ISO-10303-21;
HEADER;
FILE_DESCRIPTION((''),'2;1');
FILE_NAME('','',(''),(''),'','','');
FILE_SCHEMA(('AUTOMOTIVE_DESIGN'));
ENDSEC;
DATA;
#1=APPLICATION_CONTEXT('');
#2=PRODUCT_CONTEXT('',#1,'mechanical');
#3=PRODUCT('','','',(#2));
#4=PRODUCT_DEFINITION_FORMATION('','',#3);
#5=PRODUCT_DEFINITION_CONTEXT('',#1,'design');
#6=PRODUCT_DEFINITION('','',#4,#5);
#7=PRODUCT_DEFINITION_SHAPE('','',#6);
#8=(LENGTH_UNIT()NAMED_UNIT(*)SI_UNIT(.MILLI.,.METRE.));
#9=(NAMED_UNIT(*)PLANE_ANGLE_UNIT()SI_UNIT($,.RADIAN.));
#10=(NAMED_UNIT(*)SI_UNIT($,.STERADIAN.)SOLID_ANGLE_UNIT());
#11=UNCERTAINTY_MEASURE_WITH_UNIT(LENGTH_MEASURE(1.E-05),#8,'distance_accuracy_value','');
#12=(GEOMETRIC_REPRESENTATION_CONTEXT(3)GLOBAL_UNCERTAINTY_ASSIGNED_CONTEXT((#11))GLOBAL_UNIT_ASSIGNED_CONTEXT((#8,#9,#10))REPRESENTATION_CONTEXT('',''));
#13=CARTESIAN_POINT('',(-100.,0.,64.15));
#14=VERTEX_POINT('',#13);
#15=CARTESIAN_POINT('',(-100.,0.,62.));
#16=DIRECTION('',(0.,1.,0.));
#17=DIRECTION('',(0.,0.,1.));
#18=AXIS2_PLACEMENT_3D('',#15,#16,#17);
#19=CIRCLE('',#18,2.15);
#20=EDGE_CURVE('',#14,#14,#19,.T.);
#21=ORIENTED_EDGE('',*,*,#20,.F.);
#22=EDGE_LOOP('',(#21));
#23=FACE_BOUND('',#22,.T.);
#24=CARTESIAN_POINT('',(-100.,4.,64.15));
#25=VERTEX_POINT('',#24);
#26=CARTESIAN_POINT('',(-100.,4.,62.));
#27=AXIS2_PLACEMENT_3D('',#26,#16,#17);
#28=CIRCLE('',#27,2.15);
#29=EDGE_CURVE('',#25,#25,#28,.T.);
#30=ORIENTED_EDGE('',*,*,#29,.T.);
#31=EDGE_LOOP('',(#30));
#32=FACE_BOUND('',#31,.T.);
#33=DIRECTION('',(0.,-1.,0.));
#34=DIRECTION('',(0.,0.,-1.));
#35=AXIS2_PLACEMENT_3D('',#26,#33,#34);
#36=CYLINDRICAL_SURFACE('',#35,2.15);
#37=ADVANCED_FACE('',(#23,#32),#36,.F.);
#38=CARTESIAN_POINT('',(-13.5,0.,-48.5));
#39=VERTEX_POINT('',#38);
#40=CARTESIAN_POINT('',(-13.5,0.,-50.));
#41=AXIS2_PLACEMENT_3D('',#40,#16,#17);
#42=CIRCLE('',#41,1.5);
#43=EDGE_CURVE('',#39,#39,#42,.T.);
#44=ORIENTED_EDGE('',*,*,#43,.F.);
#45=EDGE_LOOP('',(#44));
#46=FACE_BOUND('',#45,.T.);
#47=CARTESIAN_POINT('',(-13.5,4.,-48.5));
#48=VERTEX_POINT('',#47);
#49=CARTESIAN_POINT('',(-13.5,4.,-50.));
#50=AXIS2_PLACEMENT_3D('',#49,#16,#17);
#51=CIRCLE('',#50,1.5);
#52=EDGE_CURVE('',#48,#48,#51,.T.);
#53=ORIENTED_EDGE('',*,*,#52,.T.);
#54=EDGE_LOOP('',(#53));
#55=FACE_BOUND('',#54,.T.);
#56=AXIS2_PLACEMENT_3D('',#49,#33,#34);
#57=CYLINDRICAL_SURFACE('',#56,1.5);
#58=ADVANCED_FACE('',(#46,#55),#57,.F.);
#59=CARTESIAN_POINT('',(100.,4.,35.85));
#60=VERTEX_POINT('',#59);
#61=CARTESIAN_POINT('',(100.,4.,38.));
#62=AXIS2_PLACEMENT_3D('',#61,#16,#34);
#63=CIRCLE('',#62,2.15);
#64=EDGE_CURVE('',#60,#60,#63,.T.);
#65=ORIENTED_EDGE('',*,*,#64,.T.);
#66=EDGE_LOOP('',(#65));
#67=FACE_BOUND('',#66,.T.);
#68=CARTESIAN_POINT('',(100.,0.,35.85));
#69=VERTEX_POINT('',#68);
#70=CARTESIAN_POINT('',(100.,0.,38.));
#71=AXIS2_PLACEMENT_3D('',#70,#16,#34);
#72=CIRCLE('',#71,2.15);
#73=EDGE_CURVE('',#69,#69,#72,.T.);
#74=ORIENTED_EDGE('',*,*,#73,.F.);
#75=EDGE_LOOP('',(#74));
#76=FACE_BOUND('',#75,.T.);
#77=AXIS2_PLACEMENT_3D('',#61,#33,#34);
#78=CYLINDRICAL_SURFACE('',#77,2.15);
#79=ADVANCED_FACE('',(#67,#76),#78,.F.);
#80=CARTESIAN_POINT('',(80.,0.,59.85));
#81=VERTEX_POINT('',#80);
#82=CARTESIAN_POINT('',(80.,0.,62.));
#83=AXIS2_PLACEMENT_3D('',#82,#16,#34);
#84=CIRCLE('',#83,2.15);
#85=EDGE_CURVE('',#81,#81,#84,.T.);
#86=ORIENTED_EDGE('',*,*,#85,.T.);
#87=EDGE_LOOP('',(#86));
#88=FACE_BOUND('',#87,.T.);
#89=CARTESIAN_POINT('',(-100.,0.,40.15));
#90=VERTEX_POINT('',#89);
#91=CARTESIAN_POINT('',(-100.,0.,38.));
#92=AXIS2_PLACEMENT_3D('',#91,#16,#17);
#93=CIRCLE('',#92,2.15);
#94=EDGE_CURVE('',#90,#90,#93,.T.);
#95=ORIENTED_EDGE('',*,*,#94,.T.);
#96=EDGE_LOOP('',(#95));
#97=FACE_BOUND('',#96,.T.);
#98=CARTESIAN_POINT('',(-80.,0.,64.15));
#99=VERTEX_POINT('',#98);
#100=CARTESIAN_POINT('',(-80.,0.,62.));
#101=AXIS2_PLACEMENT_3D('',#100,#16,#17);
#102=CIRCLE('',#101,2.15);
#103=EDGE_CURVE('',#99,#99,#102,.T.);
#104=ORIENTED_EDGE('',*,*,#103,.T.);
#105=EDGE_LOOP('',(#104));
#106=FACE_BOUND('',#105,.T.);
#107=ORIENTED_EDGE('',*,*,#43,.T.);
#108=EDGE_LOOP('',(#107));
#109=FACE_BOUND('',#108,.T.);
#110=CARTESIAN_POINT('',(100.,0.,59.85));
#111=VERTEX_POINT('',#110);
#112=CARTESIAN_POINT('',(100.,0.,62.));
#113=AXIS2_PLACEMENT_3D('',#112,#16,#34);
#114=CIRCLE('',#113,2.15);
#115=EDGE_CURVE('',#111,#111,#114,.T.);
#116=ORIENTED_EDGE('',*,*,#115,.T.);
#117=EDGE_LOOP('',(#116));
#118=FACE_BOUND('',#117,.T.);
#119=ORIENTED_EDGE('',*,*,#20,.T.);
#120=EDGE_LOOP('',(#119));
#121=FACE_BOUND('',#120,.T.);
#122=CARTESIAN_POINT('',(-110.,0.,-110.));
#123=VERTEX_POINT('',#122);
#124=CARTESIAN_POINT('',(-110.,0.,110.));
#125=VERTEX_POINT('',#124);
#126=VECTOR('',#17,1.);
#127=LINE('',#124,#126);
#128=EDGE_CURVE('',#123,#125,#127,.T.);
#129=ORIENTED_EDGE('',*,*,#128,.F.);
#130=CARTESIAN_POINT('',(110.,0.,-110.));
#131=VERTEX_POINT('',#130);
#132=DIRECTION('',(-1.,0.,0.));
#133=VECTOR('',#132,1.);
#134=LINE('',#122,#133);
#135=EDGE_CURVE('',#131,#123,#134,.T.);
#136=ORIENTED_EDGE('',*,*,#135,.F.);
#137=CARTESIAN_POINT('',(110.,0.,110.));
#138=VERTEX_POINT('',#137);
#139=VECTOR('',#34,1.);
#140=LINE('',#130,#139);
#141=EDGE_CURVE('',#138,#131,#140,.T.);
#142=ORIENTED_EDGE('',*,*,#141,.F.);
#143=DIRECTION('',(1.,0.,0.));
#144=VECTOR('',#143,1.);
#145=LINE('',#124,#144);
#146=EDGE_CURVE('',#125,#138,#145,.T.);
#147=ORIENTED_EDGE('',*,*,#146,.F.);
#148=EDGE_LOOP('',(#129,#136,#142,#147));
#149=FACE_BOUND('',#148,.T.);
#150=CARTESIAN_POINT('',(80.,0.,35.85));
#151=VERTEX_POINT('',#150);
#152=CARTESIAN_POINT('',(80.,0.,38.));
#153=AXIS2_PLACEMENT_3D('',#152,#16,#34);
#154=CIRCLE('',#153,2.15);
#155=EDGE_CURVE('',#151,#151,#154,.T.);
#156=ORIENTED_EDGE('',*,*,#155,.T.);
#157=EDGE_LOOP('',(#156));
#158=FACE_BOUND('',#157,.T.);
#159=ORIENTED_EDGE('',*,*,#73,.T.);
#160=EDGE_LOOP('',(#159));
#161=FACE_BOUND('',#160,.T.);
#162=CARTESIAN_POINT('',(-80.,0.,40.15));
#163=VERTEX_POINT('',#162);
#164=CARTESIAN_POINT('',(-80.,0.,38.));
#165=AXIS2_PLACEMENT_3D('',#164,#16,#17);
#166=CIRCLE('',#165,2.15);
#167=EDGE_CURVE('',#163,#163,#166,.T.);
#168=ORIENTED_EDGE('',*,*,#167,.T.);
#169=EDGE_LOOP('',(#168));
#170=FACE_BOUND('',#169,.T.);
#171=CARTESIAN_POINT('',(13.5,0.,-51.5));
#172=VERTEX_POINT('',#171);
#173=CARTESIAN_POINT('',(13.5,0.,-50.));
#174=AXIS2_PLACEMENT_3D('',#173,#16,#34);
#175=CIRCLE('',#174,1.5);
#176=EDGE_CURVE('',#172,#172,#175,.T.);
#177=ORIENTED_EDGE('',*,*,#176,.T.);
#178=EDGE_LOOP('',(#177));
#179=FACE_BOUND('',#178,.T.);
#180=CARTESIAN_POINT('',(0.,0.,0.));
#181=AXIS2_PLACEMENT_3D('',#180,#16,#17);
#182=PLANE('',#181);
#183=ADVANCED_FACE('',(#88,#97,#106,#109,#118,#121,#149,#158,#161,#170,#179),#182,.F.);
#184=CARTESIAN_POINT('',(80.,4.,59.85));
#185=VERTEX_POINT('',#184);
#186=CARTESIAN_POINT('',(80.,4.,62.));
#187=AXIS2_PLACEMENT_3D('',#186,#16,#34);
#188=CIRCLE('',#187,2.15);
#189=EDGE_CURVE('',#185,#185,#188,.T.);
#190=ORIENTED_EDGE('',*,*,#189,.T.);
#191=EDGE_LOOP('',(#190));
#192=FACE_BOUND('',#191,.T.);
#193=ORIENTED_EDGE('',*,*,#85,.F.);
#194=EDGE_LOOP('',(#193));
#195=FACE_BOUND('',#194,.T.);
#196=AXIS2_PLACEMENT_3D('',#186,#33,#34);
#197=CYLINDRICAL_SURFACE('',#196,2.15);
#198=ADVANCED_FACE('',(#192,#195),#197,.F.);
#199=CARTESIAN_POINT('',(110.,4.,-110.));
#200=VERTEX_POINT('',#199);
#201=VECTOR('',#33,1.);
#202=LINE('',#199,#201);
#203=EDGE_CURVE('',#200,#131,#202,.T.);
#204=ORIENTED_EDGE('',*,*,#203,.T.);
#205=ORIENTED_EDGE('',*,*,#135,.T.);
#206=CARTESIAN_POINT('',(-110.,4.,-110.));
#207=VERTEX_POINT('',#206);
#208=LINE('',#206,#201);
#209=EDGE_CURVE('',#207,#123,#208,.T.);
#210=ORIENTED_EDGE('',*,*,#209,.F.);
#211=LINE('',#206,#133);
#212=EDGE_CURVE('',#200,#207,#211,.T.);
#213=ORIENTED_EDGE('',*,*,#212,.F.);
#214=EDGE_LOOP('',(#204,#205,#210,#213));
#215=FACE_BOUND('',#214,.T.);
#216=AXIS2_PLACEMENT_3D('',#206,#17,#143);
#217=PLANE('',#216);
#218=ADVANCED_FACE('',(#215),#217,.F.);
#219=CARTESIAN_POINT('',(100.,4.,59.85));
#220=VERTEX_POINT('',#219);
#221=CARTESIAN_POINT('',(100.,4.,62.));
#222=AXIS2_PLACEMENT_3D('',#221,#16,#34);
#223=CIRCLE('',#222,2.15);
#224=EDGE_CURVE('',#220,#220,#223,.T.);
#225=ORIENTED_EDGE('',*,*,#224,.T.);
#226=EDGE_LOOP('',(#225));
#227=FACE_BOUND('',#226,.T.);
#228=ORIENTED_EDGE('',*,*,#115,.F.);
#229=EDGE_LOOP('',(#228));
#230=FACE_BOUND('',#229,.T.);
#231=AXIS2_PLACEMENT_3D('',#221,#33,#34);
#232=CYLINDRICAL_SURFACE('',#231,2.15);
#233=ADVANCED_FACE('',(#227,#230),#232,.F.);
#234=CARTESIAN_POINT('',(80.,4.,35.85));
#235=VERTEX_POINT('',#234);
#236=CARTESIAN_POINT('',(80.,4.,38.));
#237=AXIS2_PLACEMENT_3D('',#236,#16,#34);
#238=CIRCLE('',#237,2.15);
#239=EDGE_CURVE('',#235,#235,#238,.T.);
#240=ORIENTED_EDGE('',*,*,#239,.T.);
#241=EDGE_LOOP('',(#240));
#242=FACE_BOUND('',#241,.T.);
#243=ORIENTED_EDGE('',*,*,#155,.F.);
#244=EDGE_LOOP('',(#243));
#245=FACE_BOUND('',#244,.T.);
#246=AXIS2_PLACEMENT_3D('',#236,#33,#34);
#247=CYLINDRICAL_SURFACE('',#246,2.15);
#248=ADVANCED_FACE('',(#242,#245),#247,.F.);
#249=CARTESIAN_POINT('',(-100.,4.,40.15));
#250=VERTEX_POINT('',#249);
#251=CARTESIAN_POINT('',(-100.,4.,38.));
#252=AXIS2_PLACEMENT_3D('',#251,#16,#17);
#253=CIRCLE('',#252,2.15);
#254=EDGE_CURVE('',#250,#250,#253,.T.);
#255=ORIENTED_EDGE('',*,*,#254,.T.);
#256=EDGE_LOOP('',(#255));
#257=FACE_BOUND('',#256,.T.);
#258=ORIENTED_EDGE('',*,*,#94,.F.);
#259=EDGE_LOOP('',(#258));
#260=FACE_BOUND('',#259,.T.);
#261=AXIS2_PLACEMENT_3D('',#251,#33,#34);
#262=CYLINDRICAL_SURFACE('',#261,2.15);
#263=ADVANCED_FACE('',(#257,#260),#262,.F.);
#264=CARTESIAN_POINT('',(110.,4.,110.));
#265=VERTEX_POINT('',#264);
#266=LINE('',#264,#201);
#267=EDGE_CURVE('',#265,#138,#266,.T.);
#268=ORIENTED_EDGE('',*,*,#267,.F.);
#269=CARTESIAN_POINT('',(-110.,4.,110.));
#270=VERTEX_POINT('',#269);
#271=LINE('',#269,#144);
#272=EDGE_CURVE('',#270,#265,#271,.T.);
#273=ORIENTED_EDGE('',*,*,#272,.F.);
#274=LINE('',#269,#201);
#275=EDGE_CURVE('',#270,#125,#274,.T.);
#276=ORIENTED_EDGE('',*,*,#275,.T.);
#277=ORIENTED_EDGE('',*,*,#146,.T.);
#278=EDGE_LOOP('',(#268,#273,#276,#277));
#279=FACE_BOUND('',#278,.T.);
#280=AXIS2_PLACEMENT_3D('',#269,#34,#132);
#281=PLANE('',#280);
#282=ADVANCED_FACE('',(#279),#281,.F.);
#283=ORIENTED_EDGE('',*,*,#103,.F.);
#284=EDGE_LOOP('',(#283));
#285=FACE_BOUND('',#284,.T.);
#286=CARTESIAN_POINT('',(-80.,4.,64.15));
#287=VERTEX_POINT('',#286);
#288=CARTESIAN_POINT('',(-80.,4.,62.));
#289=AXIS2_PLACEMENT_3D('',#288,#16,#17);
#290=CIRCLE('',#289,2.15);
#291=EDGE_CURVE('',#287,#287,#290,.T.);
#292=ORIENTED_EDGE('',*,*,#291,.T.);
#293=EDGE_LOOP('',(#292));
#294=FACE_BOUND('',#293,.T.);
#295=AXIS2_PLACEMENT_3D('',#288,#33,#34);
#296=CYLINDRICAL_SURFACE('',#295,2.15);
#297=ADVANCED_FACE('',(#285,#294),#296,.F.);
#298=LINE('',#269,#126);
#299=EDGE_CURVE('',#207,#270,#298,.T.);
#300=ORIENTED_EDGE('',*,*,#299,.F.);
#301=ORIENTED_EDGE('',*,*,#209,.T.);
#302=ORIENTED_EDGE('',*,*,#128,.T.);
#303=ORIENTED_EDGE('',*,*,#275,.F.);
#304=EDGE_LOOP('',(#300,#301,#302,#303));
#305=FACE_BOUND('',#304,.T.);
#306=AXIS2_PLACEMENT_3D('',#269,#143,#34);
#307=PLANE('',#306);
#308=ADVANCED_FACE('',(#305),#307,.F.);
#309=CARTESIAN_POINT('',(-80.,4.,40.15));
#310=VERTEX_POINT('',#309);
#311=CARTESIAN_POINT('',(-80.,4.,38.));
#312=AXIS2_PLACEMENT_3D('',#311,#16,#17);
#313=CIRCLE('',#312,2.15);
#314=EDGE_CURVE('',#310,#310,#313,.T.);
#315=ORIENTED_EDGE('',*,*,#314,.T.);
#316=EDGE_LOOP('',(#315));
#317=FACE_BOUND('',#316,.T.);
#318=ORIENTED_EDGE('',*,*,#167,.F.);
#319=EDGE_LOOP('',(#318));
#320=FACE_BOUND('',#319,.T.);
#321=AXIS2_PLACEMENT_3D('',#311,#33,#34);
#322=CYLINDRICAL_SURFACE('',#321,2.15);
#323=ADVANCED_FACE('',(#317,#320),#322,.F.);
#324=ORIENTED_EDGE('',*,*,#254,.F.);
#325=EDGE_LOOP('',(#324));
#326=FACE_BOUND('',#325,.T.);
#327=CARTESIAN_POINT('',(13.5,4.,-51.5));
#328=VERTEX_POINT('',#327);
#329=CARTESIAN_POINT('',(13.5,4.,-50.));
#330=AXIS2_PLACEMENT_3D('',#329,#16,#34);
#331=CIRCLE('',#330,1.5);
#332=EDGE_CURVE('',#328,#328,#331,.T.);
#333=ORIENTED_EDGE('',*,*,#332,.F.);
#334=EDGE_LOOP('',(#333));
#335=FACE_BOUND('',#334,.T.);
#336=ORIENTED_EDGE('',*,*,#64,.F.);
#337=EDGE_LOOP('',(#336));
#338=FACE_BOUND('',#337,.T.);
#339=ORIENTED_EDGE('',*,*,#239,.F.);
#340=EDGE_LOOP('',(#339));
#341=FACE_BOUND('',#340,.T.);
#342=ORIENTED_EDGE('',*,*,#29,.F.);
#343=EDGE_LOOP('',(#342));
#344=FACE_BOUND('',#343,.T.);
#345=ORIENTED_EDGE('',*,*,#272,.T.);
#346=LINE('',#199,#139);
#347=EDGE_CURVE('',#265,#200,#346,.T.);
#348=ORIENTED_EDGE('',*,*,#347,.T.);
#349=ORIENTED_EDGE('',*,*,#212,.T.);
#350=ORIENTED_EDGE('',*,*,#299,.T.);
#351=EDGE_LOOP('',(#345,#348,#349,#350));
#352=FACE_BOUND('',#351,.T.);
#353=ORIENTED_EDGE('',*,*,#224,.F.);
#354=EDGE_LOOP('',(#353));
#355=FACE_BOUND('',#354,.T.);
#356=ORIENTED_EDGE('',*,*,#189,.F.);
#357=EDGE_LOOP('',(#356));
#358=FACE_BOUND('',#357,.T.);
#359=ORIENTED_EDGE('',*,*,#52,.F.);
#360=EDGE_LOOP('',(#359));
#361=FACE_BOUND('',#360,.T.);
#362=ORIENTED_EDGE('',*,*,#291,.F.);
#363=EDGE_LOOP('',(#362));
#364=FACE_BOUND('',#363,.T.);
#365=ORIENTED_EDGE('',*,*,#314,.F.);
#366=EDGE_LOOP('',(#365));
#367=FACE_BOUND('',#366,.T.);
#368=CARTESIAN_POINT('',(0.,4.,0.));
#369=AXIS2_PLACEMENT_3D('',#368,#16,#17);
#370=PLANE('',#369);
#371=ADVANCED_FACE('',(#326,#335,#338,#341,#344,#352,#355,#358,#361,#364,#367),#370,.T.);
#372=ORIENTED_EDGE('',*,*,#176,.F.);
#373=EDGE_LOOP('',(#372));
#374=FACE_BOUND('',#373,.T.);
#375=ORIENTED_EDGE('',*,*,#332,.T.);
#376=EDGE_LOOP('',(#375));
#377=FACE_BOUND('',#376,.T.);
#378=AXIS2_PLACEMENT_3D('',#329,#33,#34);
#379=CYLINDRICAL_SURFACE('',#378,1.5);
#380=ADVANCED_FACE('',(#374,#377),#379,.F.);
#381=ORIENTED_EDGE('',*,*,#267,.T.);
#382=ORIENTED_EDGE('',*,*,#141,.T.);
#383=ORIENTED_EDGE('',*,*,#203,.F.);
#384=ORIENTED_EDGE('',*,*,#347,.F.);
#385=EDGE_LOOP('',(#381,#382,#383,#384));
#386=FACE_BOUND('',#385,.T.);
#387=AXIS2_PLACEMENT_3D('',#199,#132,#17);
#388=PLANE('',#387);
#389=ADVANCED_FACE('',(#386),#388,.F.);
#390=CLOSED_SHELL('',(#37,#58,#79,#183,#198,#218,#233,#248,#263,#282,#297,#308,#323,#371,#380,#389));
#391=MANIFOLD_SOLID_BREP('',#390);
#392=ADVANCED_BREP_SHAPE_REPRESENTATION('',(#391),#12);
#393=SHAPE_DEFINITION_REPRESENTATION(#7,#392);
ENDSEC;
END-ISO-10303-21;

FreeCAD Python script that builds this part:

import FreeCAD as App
import Part
import Sketcher
Q = App.Units.Quantity


def add_polygon(sketch, points):
    """Adds a closed chain of lines whose ends are joined by coincident constraints."""
    first, n = sketch.GeometryCount, len(points)
    for a, b in zip(points, points[1:] + points[:1]):
        sketch.addGeometry(Part.LineSegment(App.Vector(*a, 0), App.Vector(*b, 0)), False)
    for i in range(n):
        sketch.addConstraint(Sketcher.Constraint("Coincident", first + i, 2, first + (i + 1) % n, 1))

doc = App.newDocument("Part")
body = doc.addObject("PartDesign::Body", "Body")

sketch1 = doc.addObject("Sketcher::SketchObject", "Sketch")
body.addObject(sketch1)
sketch1.AttachmentSupport = (doc.XZ_Plane, [""])
sketch1.MapMode = "FlatFace"
add_polygon(sketch1, [(-110, -110), (-110, 110), (110, 110), (110, -110)])
sketch1.addGeometry(Part.Circle(App.Vector(-100, 62, 0), App.Vector(0, 0, 1), 2.15), False)
sketch1.addGeometry(Part.Circle(App.Vector(-80, 62, 0), App.Vector(0, 0, 1), 2.15), False)
sketch1.addGeometry(Part.Circle(App.Vector(-100, 38, 0), App.Vector(0, 0, 1), 2.15), False)
sketch1.addGeometry(Part.Circle(App.Vector(-80, 38, 0), App.Vector(0, 0, 1), 2.15), False)
sketch1.addGeometry(Part.Circle(App.Vector(80, 62, 0), App.Vector(0, 0, 1), 2.15), False)
sketch1.addGeometry(Part.Circle(App.Vector(100, 62, 0), App.Vector(0, 0, 1), 2.15), False)
sketch1.addGeometry(Part.Circle(App.Vector(80, 38, 0), App.Vector(0, 0, 1), 2.15), False)
sketch1.addGeometry(Part.Circle(App.Vector(100, 38, 0), App.Vector(0, 0, 1), 2.15), False)
sketch1.addGeometry(Part.Circle(App.Vector(-13.5, -50, 0), App.Vector(0, 0, 1), 1.5), False)
sketch1.addGeometry(Part.Circle(App.Vector(13.5, -50, 0), App.Vector(0, 0, 1), 1.5), False)
sketch1.addConstraint([
    Sketcher.Constraint("Vertical", 0),
    Sketcher.Constraint("Horizontal", 1),
    Sketcher.Constraint("Vertical", 2),
    Sketcher.Constraint("Horizontal", 3),
    Sketcher.Constraint("Equal", 4, 5),
    Sketcher.Constraint("Equal", 5, 6),
    Sketcher.Constraint("Equal", 6, 7),
    Sketcher.Constraint("Equal", 7, 8),
    Sketcher.Constraint("Equal", 8, 9),
    Sketcher.Constraint("Equal", 9, 10),
    Sketcher.Constraint("Equal", 10, 11),
    Sketcher.Constraint("Equal", 12, 13),
    Sketcher.Constraint("Symmetric", 0, 2, 2, 2, -1, 1),
    Sketcher.Constraint("Symmetric", 5, 3, 8, 3, -2),
    Sketcher.Constraint("Symmetric", 4, 3, 9, 3, -2),
    Sketcher.Constraint("Symmetric", 7, 3, 10, 3, -2),
    Sketcher.Constraint("Symmetric", 6, 3, 11, 3, -2),
    Sketcher.Constraint("Symmetric", 12, 3, 13, 3, -2),
    Sketcher.Constraint("Horizontal", 4, 3, 5, 3),
    Sketcher.Constraint("Horizontal", 6, 3, 7, 3),
    Sketcher.Constraint("Vertical", 4, 3, 6, 3),
    Sketcher.Constraint("Vertical", 5, 3, 7, 3),
    Sketcher.Constraint("Equal", 3, 0),
    Sketcher.Constraint("Diameter", 12, Q("3 mm")),
    Sketcher.Constraint("Diameter", 4, Q("4.3 mm")),
    Sketcher.Constraint("DistanceX", 1, 1, 1, 2, Q("220 mm")),
    Sketcher.Constraint("DistanceX", 4, 3, -1, 1, Q("100 mm")),
    Sketcher.Constraint("DistanceY", -1, 1, 4, 3, Q("62 mm")),
    Sketcher.Constraint("DistanceX", 5, 3, -1, 1, Q("80 mm")),
    Sketcher.Constraint("DistanceY", -1, 1, 6, 3, Q("38 mm")),
    Sketcher.Constraint("DistanceY", 12, 3, -1, 1, Q("50 mm")),
    Sketcher.Constraint("DistanceX", 12, 3, 13, 3, Q("27 mm")),
])
pad1 = doc.addObject("PartDesign::Pad", "Pad")
body.addObject(pad1)
pad1.Profile = sketch1
pad1.Length = 4
pad1.Reversed = True

doc.recompute()
